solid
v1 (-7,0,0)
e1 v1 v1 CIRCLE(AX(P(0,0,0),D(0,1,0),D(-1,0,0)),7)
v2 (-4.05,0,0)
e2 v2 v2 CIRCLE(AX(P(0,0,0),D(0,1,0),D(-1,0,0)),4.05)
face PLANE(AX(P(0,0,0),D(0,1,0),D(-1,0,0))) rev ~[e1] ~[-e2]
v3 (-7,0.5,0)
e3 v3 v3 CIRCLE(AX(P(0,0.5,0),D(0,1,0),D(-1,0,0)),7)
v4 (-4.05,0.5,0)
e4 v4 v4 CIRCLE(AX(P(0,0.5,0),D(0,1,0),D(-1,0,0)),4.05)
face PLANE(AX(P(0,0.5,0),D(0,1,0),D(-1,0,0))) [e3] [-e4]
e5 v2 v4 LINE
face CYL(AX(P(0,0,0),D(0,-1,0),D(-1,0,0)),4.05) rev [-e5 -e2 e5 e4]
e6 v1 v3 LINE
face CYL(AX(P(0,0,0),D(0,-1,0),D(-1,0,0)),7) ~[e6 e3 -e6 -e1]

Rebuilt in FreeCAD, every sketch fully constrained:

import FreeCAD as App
import Part
import Sketcher

V = App.Vector

doc = App.newDocument("Part")
body = doc.addObject("PartDesign::Body", "Body")

# Sketch on XZ plane
sketch1 = body.newObject("Sketcher::SketchObject", "Sketch")
sketch1.AttachmentSupport = (doc.getObject("XZ_Plane"), [""])
sketch1.MapMode = "FlatFace"
sketch1.addGeometry(Part.Circle(V(0, 0, 0), V(0, 0, 1), 7), False)
sketch1.addGeometry(Part.Circle(V(0, 0, 0), V(0, 0, 1), 4), False)
sketch1.addConstraint(Sketcher.Constraint("Coincident", 0, 3, -1, 1))
sketch1.addConstraint(Sketcher.Constraint("Coincident", 1, 3, -1, 1))
sketch1.addConstraint(Sketcher.Constraint("Diameter", 0, 14.0))
sketch1.addConstraint(Sketcher.Constraint("Diameter", 1, 8.1))
pad1 = body.newObject("PartDesign::Pad", "Pad")
pad1.Profile = sketch1
pad1.Length = 0.5
pad1.Reversed = True

doc.recompute()
